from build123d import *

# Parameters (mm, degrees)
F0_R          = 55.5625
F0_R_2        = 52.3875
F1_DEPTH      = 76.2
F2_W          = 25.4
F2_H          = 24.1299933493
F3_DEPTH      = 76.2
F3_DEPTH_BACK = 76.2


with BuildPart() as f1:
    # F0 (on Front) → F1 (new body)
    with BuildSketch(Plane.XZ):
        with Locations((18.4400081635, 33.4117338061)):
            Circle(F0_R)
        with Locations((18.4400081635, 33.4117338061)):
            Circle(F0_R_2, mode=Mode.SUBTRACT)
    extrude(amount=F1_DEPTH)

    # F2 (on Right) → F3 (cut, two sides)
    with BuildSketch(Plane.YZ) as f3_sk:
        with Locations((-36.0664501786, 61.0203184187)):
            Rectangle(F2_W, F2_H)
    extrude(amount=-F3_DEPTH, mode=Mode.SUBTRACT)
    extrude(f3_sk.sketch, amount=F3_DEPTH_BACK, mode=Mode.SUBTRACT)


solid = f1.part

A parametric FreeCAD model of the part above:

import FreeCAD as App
import Part
import Sketcher
from FreeCAD import Vector
Q = App.Units.Quantity


def add_polygon(sketch, points):
    """Adds a closed chain of lines whose ends are joined by coincident constraints."""
    first, n = sketch.GeometryCount, len(points)
    for a, b in zip(points, points[1:] + points[:1]):
        sketch.addGeometry(Part.LineSegment(App.Vector(*a, 0), App.Vector(*b, 0)), False)
    for i in range(n):
        sketch.addConstraint(Sketcher.Constraint("Coincident", first + i, 2, first + (i + 1) % n, 1))

doc = App.newDocument("Part")
body = doc.addObject("PartDesign::Body", "Body")

# Sketch on XZ plane
sketch1 = body.newObject("Sketcher::SketchObject", "Sketch")
sketch1.AttachmentSupport = (doc.getObject("XZ_Plane"), [""])
sketch1.MapMode = "FlatFace"
sketch1.addGeometry([
    Part.Circle(Vector(18.440008, 33.411734, 0), Vector(0, 0, 1), 55.5625),
    Part.Circle(Vector(18.440008, 33.411734, 0), Vector(0, 0, 1), 52.3875),
], False)
sketch1.addConstraint([
    Sketcher.Constraint("Coincident", 1, 3, 0, 3),
    Sketcher.Constraint("Diameter", 0, Q("4.375 in")),
    Sketcher.Constraint("Diameter", 1, Q("4.125 in")),
    Sketcher.Constraint("DistanceX", -1, 1, 0, 3, 18.440008),
    Sketcher.Constraint("DistanceY", -1, 1, 0, 3, 33.411734),
])
pad1 = body.newObject("PartDesign::Pad", "Pad")
pad1.Profile = sketch1
pad1.Length = Q("3 in")

# Sketch on YZ plane
sketch2 = body.newObject("Sketcher::SketchObject", "Sketch001")
sketch2.AttachmentSupport = (doc.getObject("YZ_Plane"), [""])
sketch2.MapMode = "FlatFace"
add_polygon(sketch2, [(-48.76645, 73.085315), (-48.76645, 48.955322), (-23.36645, 48.955322), (-23.36645, 73.085315)])  # lines 0-3
sketch2.addConstraint([
    Sketcher.Constraint("Vertical", 0),
    Sketcher.Constraint("Horizontal", 1),
    Sketcher.Constraint("Vertical", 2),
    Sketcher.Constraint("Horizontal", 3),
    Sketcher.Constraint("DistanceX", 1, 1, 1, 2, Q("1 in")),
    Sketcher.Constraint("DistanceY", 0, 2, 0, 1, 24.129993),
    Sketcher.Constraint("DistanceX", 0, 2, -1, 1, 48.76645),
    Sketcher.Constraint("DistanceY", -1, 1, 0, 2, 48.955322),
])
pocket1 = body.newObject("PartDesign::Pocket", "Pocket")
pocket1.Profile = sketch2
pocket1.Type = "ThroughAll"
pocket1.Midplane = True

doc.recompute()
